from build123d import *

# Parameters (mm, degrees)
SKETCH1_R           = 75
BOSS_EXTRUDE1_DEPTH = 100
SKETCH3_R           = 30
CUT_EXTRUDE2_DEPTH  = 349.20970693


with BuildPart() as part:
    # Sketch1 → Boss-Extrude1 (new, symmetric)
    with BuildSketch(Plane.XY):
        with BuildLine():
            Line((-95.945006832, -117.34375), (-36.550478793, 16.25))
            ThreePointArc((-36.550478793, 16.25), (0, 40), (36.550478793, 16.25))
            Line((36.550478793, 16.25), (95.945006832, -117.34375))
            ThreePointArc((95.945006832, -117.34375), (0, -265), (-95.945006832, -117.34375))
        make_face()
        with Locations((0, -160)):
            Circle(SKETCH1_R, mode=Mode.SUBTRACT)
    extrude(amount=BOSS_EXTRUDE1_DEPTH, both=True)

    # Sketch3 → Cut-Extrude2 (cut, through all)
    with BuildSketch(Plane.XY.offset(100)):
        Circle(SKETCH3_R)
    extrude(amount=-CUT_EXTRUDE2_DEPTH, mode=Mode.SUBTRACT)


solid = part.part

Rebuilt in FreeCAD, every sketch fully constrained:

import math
import FreeCAD as App
import Part
import Sketcher

V = App.Vector

doc = App.newDocument("Part")
body = doc.addObject("PartDesign::Body", "Body")

# Sketch on XY plane
sketch1 = doc.addObject("Sketcher::SketchObject", "Sketch")
body.addObject(sketch1)
sketch1.AttachmentSupport = (doc.XY_Plane, [""])
sketch1.MapMode = "FlatFace"
sketch1.addGeometry(Part.LineSegment(V(-37, 16, 0), V(-96, -117, 0)), False)
sketch1.addGeometry(Part.ArcOfCircle(Part.Circle(V(0, -160, 0), V(0, 0, 1), 105), math.radians(156), math.radians(384)), False)
sketch1.addGeometry(Part.LineSegment(V(96, -117, 0), V(37, 16, 0)), False)
sketch1.addGeometry(Part.ArcOfCircle(Part.Circle(V(0, 0, 0), V(0, 0, 1), 40), math.radians(24), math.radians(156)), False)
sketch1.addGeometry(Part.Circle(V(0, -160, 0), V(0, 0, 1), 75), False)
sketch1.addConstraint(Sketcher.Constraint("Tangent", 0, 2, 1, 1))
sketch1.addConstraint(Sketcher.Constraint("Tangent", 1, 2, 2, 1))
sketch1.addConstraint(Sketcher.Constraint("Tangent", 2, 2, 3, 1))
sketch1.addConstraint(Sketcher.Constraint("Tangent", 3, 2, 0, 1))
sketch1.addConstraint(Sketcher.Constraint("Coincident", 3, 3, -1, 1))
sketch1.addConstraint(Sketcher.Constraint("Coincident", 4, 3, 1, 3))
sketch1.addConstraint(Sketcher.Constraint("PointOnObject", 1, 3, -2))
sketch1.addConstraint(Sketcher.Constraint("Diameter", 4, 150.0))
sketch1.addConstraint(Sketcher.Constraint("Radius", 1, 105.0))
sketch1.addConstraint(Sketcher.Constraint("Radius", 3, 40.0))
sketch1.addConstraint(Sketcher.Constraint("DistanceY", 1, 3, -1, 1, 160.0))
pad1 = doc.addObject("PartDesign::Pad", "Pad")
body.addObject(pad1)
pad1.Profile = sketch1
pad1.Length = 200
pad1.Midplane = True

# Sketch on XY plane
sketch2 = doc.addObject("Sketcher::SketchObject", "Sketch001")
body.addObject(sketch2)
sketch2.AttachmentSupport = (doc.XY_Plane, [""])
sketch2.MapMode = "FlatFace"
sketch2.AttachmentOffset = App.Placement(V(0, 0, 100), App.Rotation())
sketch2.addGeometry(Part.Circle(V(0, 0, 0), V(0, 0, 1), 30), False)
sketch2.addConstraint(Sketcher.Constraint("Coincident", 0, 3, -1, 1))
sketch2.addConstraint(Sketcher.Constraint("Diameter", 0, 60.0))
pocket1 = doc.addObject("PartDesign::Pocket", "Pocket")
body.addObject(pocket1)
pocket1.Profile = sketch2
pocket1.Type = "ThroughAll"

doc.recompute()
